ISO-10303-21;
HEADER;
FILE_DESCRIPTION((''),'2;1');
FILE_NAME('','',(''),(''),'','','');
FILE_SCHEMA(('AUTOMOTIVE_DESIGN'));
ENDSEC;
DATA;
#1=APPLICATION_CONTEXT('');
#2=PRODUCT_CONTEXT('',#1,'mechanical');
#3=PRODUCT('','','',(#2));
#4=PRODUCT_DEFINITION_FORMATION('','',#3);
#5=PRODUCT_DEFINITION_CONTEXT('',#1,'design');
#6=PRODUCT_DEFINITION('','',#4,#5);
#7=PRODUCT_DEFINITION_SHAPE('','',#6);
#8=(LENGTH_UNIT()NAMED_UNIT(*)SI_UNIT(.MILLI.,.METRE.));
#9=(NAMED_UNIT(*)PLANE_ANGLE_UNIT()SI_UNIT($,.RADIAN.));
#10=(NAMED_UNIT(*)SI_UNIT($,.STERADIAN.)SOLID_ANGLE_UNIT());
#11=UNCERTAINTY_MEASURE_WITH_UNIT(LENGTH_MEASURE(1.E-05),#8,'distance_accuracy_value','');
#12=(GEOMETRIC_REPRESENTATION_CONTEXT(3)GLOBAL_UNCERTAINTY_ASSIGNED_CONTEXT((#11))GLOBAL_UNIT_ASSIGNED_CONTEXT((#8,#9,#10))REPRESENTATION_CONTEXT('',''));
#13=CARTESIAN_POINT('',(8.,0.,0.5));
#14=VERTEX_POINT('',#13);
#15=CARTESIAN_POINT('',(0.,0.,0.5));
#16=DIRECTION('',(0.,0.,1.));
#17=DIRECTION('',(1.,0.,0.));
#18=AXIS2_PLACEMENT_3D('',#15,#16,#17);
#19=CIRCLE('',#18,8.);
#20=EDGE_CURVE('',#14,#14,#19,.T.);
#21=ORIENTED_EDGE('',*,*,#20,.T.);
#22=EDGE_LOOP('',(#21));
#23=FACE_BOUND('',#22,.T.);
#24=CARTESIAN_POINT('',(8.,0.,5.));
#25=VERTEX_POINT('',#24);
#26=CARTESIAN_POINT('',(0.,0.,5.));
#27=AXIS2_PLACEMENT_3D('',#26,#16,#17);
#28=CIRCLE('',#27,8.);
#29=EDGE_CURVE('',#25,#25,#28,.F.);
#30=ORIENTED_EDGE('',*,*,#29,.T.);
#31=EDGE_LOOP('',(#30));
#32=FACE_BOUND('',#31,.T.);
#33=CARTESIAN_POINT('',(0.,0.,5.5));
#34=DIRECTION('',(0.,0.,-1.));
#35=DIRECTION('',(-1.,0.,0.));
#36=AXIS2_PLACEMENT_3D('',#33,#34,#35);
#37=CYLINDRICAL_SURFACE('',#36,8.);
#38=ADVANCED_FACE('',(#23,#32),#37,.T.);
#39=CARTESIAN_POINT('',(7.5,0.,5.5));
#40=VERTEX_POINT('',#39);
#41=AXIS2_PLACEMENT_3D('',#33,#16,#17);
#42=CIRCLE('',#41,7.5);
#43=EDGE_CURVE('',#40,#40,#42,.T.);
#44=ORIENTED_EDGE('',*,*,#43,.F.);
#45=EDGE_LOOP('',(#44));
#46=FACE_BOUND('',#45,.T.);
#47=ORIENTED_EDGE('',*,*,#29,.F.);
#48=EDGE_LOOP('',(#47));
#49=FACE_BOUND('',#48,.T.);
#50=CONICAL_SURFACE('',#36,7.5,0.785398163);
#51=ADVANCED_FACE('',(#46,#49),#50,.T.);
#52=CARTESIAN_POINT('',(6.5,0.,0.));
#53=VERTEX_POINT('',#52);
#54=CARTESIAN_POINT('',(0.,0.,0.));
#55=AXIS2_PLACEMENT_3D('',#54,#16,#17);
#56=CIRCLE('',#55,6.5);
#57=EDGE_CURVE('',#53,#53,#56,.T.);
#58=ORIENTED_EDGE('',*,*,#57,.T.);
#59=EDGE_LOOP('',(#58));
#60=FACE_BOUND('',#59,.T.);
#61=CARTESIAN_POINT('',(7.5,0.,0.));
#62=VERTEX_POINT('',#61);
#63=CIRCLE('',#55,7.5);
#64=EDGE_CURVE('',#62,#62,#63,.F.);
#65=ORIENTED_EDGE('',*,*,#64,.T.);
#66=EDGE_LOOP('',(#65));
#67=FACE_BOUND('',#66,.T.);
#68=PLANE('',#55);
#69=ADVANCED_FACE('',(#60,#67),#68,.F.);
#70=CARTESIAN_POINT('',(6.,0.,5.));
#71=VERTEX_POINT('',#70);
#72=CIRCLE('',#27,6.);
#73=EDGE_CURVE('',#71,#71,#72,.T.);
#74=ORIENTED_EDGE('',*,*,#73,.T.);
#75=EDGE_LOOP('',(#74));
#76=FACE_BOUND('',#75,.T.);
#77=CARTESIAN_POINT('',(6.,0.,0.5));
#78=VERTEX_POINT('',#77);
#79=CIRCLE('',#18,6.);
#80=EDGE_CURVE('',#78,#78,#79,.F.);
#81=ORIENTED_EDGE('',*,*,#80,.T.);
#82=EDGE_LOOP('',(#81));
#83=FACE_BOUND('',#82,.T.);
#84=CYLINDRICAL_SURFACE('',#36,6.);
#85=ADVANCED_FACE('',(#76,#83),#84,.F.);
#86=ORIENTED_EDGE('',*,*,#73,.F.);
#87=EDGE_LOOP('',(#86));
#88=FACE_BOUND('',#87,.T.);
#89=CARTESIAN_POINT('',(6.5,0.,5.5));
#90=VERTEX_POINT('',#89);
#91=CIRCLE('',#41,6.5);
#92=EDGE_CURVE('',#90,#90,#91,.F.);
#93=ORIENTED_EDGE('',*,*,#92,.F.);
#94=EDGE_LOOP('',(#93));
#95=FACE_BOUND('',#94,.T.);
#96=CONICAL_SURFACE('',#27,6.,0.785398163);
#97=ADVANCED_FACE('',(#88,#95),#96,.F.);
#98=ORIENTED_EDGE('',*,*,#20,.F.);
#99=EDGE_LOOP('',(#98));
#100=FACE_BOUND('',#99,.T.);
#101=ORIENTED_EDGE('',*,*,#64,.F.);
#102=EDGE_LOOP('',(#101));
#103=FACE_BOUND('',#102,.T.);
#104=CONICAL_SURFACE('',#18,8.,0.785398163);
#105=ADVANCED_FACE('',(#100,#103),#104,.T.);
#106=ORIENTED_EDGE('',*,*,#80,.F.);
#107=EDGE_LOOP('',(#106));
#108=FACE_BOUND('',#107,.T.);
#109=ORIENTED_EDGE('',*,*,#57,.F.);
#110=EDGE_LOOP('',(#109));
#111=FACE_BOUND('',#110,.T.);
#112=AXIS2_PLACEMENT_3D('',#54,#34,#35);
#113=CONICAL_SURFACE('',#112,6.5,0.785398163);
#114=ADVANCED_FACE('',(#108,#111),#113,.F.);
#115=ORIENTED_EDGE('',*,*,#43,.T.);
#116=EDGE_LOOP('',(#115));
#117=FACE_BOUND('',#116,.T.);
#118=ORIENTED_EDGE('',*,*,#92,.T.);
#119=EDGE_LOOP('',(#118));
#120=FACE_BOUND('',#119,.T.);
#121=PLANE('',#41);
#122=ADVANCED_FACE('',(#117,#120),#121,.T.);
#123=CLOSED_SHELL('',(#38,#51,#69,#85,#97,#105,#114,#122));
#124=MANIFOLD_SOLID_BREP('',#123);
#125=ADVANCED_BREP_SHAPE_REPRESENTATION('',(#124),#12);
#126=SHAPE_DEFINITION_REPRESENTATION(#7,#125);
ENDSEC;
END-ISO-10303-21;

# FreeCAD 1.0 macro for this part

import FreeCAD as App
import Part
import Sketcher
from FreeCAD import Vector


def edges_at(feature, points):
    """Names of the edges that pass closest to the given points."""
    edges = feature.Shape.Edges
    near = lambda p: min(range(len(edges)), key=lambda i: edges[i].distToShape(Part.Vertex(*p))[0])
    return sorted({f"Edge{near(p) + 1}" for p in points})

doc = App.newDocument("Part")
params = doc.addObject("Spreadsheet::Sheet", "Params")
for row, (alias, value) in enumerate([
    ("sketch1_diameter", "16 mm"),
    ("sketch1_diameter2", "12 mm"),
    ("pad1_length", "5.5 mm"),
    ("chamfer_size", "0.5 mm"),
], start=1):
    params.set(f"A{row}", alias)
    params.set(f"B{row}", "=" + value)
    params.setAlias(f"B{row}", alias)

body = doc.addObject("PartDesign::Body", "Body")

sketch1 = body.newObject("Sketcher::SketchObject", "Sketch")
sketch1.AttachmentSupport = (doc.getObject("XY_Plane"), [""])
sketch1.MapMode = "FlatFace"
sketch1.addGeometry([
    Part.Circle(Vector(0, 0, 0), Vector(0, 0, 1), 8),
    Part.Circle(Vector(0, 0, 0), Vector(0, 0, 1), 6),
], False)
sketch1.addConstraint([
    Sketcher.Constraint("Coincident", 0, 3, -1, 1),
    Sketcher.Constraint("Coincident", 1, 3, -1, 1),
    Sketcher.Constraint("Diameter", 0, 16.0),
    Sketcher.Constraint("Diameter", 1, 12.0),
])
sketch1.setExpression("Constraints[2]", "Params.sketch1_diameter")
sketch1.setExpression("Constraints[3]", "Params.sketch1_diameter2")
pad1 = body.newObject("PartDesign::Pad", "Pad")
pad1.Profile = sketch1
pad1.setExpression("Length", "Params.pad1_length")
doc.recompute()

chamfer = body.newObject("PartDesign::Chamfer", "Chamfer")
chamfer.Base = (pad1, edges_at(pad1, [
    (-8, 0, 0),
    (-8, 0, 5.5),
    (-6, 0, 0),
    (-6, 0, 5.5),
]))
chamfer.setExpression("Size", "Params.chamfer_size")

doc.recompute()
